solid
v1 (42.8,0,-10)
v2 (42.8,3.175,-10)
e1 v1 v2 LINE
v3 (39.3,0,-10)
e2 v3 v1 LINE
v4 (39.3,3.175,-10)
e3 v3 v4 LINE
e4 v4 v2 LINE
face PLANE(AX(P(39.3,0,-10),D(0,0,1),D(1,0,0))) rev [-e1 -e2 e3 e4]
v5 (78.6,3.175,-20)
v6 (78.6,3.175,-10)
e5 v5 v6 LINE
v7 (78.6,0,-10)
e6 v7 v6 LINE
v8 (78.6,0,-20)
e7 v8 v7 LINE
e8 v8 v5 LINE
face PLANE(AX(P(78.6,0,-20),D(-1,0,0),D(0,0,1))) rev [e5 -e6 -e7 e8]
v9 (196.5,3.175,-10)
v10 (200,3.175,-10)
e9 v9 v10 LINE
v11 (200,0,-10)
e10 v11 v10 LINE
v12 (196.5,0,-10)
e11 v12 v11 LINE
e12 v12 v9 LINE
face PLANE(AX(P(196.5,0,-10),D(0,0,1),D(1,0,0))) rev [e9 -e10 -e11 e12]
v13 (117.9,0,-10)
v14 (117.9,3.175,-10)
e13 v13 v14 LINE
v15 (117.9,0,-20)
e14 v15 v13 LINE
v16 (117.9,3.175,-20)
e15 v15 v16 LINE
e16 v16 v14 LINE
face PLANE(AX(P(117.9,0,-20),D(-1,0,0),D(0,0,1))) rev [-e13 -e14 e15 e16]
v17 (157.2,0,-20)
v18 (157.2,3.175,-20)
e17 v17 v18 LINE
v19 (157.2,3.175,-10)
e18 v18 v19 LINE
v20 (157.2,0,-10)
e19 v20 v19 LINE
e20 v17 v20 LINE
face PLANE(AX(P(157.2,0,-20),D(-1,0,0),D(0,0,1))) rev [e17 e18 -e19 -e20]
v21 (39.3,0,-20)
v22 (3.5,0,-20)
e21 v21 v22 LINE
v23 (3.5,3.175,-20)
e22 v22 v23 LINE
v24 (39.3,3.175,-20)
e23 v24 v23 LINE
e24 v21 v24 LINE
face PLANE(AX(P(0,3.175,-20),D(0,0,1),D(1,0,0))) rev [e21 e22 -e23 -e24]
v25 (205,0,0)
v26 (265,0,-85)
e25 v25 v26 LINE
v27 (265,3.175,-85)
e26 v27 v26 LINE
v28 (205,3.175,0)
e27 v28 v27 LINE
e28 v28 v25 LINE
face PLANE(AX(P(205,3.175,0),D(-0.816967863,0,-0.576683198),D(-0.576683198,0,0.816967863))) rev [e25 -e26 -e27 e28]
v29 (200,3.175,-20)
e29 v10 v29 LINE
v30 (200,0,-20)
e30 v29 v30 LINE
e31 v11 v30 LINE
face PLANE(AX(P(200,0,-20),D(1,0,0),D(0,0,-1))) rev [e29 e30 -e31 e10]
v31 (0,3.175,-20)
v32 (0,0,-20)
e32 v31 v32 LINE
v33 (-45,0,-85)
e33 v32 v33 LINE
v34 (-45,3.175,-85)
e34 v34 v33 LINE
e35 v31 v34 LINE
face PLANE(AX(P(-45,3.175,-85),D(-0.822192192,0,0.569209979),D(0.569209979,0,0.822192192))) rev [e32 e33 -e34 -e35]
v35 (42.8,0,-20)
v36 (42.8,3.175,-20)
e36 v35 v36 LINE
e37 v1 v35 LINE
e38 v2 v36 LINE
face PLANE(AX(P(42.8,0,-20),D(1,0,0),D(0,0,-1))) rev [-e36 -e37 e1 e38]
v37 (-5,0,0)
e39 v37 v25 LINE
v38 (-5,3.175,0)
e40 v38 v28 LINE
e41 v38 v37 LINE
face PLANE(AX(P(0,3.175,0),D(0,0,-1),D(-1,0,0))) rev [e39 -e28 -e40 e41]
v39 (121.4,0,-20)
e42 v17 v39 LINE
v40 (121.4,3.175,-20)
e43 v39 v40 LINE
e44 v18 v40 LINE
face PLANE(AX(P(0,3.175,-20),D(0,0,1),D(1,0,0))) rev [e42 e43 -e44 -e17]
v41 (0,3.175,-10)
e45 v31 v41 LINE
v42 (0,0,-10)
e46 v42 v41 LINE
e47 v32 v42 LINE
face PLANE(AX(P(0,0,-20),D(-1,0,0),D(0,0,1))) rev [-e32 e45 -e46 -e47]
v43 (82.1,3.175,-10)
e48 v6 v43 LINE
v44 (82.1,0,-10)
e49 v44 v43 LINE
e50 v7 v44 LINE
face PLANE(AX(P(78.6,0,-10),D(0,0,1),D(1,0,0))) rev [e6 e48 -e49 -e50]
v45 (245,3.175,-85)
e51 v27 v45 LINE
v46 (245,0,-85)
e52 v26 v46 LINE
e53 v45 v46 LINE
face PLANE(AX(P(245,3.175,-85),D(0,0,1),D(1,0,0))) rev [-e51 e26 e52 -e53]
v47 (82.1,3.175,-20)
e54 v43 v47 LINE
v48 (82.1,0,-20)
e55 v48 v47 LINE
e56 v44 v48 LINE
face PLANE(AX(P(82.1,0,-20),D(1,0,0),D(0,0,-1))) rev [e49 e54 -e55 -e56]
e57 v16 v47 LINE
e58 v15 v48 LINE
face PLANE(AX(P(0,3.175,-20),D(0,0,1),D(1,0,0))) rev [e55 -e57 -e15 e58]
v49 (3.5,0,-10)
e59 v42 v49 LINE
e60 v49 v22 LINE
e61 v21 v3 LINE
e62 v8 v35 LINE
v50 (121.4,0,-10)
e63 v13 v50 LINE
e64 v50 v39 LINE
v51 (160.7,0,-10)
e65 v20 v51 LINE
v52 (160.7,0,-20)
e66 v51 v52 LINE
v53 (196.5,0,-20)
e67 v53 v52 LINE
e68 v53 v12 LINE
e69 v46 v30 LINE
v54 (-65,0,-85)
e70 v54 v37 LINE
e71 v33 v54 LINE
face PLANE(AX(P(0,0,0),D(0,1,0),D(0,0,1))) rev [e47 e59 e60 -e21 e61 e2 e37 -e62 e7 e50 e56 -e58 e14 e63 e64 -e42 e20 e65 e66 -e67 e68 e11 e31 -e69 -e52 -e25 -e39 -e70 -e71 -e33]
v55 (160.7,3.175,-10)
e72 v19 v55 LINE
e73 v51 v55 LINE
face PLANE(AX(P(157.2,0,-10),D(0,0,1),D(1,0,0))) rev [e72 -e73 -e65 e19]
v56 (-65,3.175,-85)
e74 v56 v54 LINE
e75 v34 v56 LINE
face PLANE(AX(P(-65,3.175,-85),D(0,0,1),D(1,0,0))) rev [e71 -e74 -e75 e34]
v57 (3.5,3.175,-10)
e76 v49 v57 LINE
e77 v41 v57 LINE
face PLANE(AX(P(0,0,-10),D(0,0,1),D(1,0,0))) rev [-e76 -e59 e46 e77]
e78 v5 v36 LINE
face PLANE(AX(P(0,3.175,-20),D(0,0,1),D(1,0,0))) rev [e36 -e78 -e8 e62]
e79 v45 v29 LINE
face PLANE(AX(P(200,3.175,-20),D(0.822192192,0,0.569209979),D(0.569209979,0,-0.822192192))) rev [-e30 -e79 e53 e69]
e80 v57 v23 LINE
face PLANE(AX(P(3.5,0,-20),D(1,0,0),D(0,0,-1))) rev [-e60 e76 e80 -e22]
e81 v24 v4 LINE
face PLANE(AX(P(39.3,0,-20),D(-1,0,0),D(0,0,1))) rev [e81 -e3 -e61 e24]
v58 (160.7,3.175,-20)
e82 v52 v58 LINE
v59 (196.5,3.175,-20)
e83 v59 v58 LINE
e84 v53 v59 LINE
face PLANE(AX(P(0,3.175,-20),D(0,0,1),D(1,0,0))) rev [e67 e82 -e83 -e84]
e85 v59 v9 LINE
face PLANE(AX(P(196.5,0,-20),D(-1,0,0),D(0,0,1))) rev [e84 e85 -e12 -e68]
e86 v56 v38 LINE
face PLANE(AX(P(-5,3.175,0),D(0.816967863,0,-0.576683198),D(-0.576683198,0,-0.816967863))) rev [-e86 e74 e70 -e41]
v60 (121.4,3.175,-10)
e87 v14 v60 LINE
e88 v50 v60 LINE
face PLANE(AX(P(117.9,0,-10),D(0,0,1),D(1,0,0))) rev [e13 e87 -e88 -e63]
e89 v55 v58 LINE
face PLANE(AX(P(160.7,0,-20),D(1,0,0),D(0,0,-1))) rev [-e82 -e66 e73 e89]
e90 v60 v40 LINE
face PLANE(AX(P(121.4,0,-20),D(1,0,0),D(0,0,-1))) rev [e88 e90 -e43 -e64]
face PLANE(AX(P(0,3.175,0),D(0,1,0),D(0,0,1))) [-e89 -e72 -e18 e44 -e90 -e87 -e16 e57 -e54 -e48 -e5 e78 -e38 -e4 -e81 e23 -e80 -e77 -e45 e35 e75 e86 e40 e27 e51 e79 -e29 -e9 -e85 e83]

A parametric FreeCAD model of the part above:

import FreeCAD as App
import Part
import Sketcher

V = App.Vector

doc = App.newDocument("Part")
body = doc.addObject("PartDesign::Body", "Body")

sketch1 = doc.addObject("Sketcher::SketchObject", "Sketch")
body.addObject(sketch1)
sketch1.AttachmentSupport = (doc.XZ_Plane, [""])
sketch1.MapMode = "FlatFace"
sketch1.addGeometry([
    Part.LineSegment(V(-5, 0, 0), V(205, 0, 0)),
    Part.LineSegment(V(205, 0, 0), V(265, -85, 0)),
    Part.LineSegment(V(265, -85, 0), V(245, -85, 0)),
    Part.LineSegment(V(245, -85, 0), V(200, -20, 0)),
    Part.LineSegment(V(200, -20, 0), V(0, -20, 0)),
    Part.LineSegment(V(0, -20, 0), V(-45, -85, 0)),
    Part.LineSegment(V(-45, -85, 0), V(-65, -85, 0)),
    Part.LineSegment(V(-65, -85, 0), V(-5, 0, 0)),
], False)
sketch1.addConstraint([
    Sketcher.Constraint("Coincident", 0, 2, 1, 1),
    Sketcher.Constraint("Coincident", 1, 2, 2, 1),
    Sketcher.Constraint("Coincident", 2, 2, 3, 1),
    Sketcher.Constraint("Coincident", 3, 2, 4, 1),
    Sketcher.Constraint("Coincident", 4, 2, 5, 1),
    Sketcher.Constraint("Coincident", 5, 2, 6, 1),
    Sketcher.Constraint("Coincident", 6, 2, 7, 1),
    Sketcher.Constraint("Coincident", 7, 2, 0, 1),
    Sketcher.Constraint("Horizontal", 0),
    Sketcher.Constraint("Horizontal", 2),
    Sketcher.Constraint("Horizontal", 4),
    Sketcher.Constraint("Horizontal", 6),
    Sketcher.Constraint("PointOnObject", 0, 2, -1),
    Sketcher.Constraint("PointOnObject", 4, 2, -2),
    Sketcher.Constraint("Horizontal", 2, 2, 5, 2),
    Sketcher.Constraint("Equal", 2, 6),
    Sketcher.Constraint("Equal", 3, 5),
    Sketcher.Constraint("Equal", 1, 7),
    Sketcher.Constraint("DistanceX", 0, 1, 0, 2, 210.0),
    Sketcher.Constraint("DistanceX", 2, 2, 2, 1, 20.0),
    Sketcher.Constraint("DistanceX", 4, 2, 4, 1, 200.0),
    Sketcher.Constraint("DistanceX", -1, 1, 1, 2, 265.0),
    Sketcher.Constraint("DistanceY", 1, 2, -1, 1, 85.0),
    Sketcher.Constraint("DistanceY", 3, 2, -1, 1, 20.0),
])
pad1 = doc.addObject("PartDesign::Pad", "Pad")
body.addObject(pad1)
pad1.Profile = sketch1
pad1.Length = 3.175
pad1.Reversed = True

sketch2 = doc.addObject("Sketcher::SketchObject", "Sketch001")
body.addObject(sketch2)
sketch2.AttachmentSupport = (doc.XZ_Plane, [""])
sketch2.MapMode = "FlatFace"
sketch2.AttachmentOffset = App.Placement(V(0, 0, -3.175), App.Rotation())
sketch2.addGeometry([
    Part.LineSegment(V(39.3, -20, 0), V(39.3, -10, 0)),
    Part.LineSegment(V(39.3, -10, 0), V(42.8, -10, 0)),
    Part.LineSegment(V(42.8, -10, 0), V(42.8, -20, 0)),
    Part.LineSegment(V(42.8, -20, 0), V(39.3, -20, 0)),
    Part.LineSegment(V(0, -20, 0), V(0, -10, 0)),
    Part.LineSegment(V(0, -10, 0), V(3.5, -10, 0)),
    Part.LineSegment(V(3.5, -10, 0), V(3.5, -20, 0)),
    Part.LineSegment(V(3.5, -20, 0), V(0, -20, 0)),
    Part.LineSegment(V(78.6, -20, 0), V(78.6, -10, 0)),
    Part.LineSegment(V(78.6, -10, 0), V(82.1, -10, 0)),
    Part.LineSegment(V(82.1, -10, 0), V(82.1, -20, 0)),
    Part.LineSegment(V(82.1, -20, 0), V(78.6, -20, 0)),
    Part.LineSegment(V(117.9, -20, 0), V(117.9, -10, 0)),
    Part.LineSegment(V(117.9, -10, 0), V(121.4, -10, 0)),
    Part.LineSegment(V(121.4, -10, 0), V(121.4, -20, 0)),
    Part.LineSegment(V(121.4, -20, 0), V(117.9, -20, 0)),
    Part.LineSegment(V(157.2, -20, 0), V(157.2, -10, 0)),
    Part.LineSegment(V(157.2, -10, 0), V(160.7, -10, 0)),
    Part.LineSegment(V(160.7, -10, 0), V(160.7, -20, 0)),
    Part.LineSegment(V(160.7, -20, 0), V(157.2, -20, 0)),
    Part.LineSegment(V(196.5, -20, 0), V(196.5, -10, 0)),
    Part.LineSegment(V(196.5, -10, 0), V(200, -10, 0)),
    Part.LineSegment(V(200, -10, 0), V(200, -20, 0)),
    Part.LineSegment(V(200, -20, 0), V(196.5, -20, 0)),
], False)
sketch2.addConstraint([
    Sketcher.Constraint("Coincident", 0, 2, 1, 1),
    Sketcher.Constraint("Coincident", 1, 2, 2, 1),
    Sketcher.Constraint("Coincident", 2, 2, 3, 1),
    Sketcher.Constraint("Coincident", 3, 2, 0, 1),
    Sketcher.Constraint("Coincident", 4, 2, 5, 1),
    Sketcher.Constraint("Coincident", 5, 2, 6, 1),
    Sketcher.Constraint("Coincident", 6, 2, 7, 1),
    Sketcher.Constraint("Coincident", 7, 2, 4, 1),
    Sketcher.Constraint("Coincident", 8, 2, 9, 1),
    Sketcher.Constraint("Coincident", 9, 2, 10, 1),
    Sketcher.Constraint("Coincident", 10, 2, 11, 1),
    Sketcher.Constraint("Coincident", 11, 2, 8, 1),
    Sketcher.Constraint("Coincident", 12, 2, 13, 1),
    Sketcher.Constraint("Coincident", 13, 2, 14, 1),
    Sketcher.Constraint("Coincident", 14, 2, 15, 1),
    Sketcher.Constraint("Coincident", 15, 2, 12, 1),
    Sketcher.Constraint("Coincident", 16, 2, 17, 1),
    Sketcher.Constraint("Coincident", 17, 2, 18, 1),
    Sketcher.Constraint("Coincident", 18, 2, 19, 1),
    Sketcher.Constraint("Coincident", 19, 2, 16, 1),
    Sketcher.Constraint("Coincident", 20, 2, 21, 1),
    Sketcher.Constraint("Coincident", 21, 2, 22, 1),
    Sketcher.Constraint("Coincident", 22, 2, 23, 1),
    Sketcher.Constraint("Coincident", 23, 2, 20, 1),
    Sketcher.Constraint("Vertical", 0),
    Sketcher.Constraint("Horizontal", 1),
    Sketcher.Constraint("Vertical", 2),
    Sketcher.Constraint("Horizontal", 3),
    Sketcher.Constraint("Vertical", 4),
    Sketcher.Constraint("Horizontal", 5),
    Sketcher.Constraint("Vertical", 6),
    Sketcher.Constraint("Horizontal", 7),
    Sketcher.Constraint("Vertical", 8),
    Sketcher.Constraint("Horizontal", 9),
    Sketcher.Constraint("Vertical", 10),
    Sketcher.Constraint("Horizontal", 11),
    Sketcher.Constraint("Vertical", 12),
    Sketcher.Constraint("Horizontal", 13),
    Sketcher.Constraint("Vertical", 14),
    Sketcher.Constraint("Horizontal", 15),
    Sketcher.Constraint("Vertical", 16),
    Sketcher.Constraint("Horizontal", 17),
    Sketcher.Constraint("Vertical", 18),
    Sketcher.Constraint("Horizontal", 19),
    Sketcher.Constraint("Vertical", 20),
    Sketcher.Constraint("Horizontal", 21),
    Sketcher.Constraint("Vertical", 22),
    Sketcher.Constraint("Horizontal", 23),
    Sketcher.Constraint("PointOnObject", 4, 2, -2),
    Sketcher.Constraint("Horizontal", 1, 2, 4, 2),
    Sketcher.Constraint("Horizontal", 3, 2, 6, 2),
    Sketcher.Constraint("Horizontal", 5, 2, 8, 2),
    Sketcher.Constraint("Horizontal", 7, 2, 10, 2),
    Sketcher.Constraint("Horizontal", 9, 2, 12, 2),
    Sketcher.Constraint("Horizontal", 11, 2, 14, 2),
    Sketcher.Constraint("Horizontal", 13, 2, 16, 2),
    Sketcher.Constraint("Horizontal", 15, 2, 18, 2),
    Sketcher.Constraint("Horizontal", 17, 2, 20, 2),
    Sketcher.Constraint("Horizontal", 19, 2, 22, 2),
    Sketcher.Constraint("Equal", 3, 5),
    Sketcher.Constraint("Equal", 7, 9),
    Sketcher.Constraint("Equal", 11, 13),
    Sketcher.Constraint("Equal", 15, 17),
    Sketcher.Constraint("Equal", 19, 21),
    Sketcher.Constraint("DistanceY", 0, 1, 0, 2, 10.0),
    Sketcher.Constraint("DistanceX", 1, 1, 1, 2, 3.5),
    Sketcher.Constraint("DistanceY", 0, 2, -1, 1, 10.0),
    Sketcher.Constraint("DistanceX", -1, 1, 21, 2, 200.0),
    Sketcher.Constraint("DistanceX", -1, 1, 0, 2, 39.3),
    Sketcher.Constraint("DistanceX", -1, 1, 8, 2, 78.6),
    Sketcher.Constraint("DistanceX", -1, 1, 12, 2, 117.9),
    Sketcher.Constraint("DistanceX", -1, 1, 16, 2, 157.2),
])
pocket1 = doc.addObject("PartDesign::Pocket", "Pocket")
body.addObject(pocket1)
pocket1.Profile = sketch2
pocket1.Type = "ThroughAll"
pocket1.Reversed = True

doc.recompute()
